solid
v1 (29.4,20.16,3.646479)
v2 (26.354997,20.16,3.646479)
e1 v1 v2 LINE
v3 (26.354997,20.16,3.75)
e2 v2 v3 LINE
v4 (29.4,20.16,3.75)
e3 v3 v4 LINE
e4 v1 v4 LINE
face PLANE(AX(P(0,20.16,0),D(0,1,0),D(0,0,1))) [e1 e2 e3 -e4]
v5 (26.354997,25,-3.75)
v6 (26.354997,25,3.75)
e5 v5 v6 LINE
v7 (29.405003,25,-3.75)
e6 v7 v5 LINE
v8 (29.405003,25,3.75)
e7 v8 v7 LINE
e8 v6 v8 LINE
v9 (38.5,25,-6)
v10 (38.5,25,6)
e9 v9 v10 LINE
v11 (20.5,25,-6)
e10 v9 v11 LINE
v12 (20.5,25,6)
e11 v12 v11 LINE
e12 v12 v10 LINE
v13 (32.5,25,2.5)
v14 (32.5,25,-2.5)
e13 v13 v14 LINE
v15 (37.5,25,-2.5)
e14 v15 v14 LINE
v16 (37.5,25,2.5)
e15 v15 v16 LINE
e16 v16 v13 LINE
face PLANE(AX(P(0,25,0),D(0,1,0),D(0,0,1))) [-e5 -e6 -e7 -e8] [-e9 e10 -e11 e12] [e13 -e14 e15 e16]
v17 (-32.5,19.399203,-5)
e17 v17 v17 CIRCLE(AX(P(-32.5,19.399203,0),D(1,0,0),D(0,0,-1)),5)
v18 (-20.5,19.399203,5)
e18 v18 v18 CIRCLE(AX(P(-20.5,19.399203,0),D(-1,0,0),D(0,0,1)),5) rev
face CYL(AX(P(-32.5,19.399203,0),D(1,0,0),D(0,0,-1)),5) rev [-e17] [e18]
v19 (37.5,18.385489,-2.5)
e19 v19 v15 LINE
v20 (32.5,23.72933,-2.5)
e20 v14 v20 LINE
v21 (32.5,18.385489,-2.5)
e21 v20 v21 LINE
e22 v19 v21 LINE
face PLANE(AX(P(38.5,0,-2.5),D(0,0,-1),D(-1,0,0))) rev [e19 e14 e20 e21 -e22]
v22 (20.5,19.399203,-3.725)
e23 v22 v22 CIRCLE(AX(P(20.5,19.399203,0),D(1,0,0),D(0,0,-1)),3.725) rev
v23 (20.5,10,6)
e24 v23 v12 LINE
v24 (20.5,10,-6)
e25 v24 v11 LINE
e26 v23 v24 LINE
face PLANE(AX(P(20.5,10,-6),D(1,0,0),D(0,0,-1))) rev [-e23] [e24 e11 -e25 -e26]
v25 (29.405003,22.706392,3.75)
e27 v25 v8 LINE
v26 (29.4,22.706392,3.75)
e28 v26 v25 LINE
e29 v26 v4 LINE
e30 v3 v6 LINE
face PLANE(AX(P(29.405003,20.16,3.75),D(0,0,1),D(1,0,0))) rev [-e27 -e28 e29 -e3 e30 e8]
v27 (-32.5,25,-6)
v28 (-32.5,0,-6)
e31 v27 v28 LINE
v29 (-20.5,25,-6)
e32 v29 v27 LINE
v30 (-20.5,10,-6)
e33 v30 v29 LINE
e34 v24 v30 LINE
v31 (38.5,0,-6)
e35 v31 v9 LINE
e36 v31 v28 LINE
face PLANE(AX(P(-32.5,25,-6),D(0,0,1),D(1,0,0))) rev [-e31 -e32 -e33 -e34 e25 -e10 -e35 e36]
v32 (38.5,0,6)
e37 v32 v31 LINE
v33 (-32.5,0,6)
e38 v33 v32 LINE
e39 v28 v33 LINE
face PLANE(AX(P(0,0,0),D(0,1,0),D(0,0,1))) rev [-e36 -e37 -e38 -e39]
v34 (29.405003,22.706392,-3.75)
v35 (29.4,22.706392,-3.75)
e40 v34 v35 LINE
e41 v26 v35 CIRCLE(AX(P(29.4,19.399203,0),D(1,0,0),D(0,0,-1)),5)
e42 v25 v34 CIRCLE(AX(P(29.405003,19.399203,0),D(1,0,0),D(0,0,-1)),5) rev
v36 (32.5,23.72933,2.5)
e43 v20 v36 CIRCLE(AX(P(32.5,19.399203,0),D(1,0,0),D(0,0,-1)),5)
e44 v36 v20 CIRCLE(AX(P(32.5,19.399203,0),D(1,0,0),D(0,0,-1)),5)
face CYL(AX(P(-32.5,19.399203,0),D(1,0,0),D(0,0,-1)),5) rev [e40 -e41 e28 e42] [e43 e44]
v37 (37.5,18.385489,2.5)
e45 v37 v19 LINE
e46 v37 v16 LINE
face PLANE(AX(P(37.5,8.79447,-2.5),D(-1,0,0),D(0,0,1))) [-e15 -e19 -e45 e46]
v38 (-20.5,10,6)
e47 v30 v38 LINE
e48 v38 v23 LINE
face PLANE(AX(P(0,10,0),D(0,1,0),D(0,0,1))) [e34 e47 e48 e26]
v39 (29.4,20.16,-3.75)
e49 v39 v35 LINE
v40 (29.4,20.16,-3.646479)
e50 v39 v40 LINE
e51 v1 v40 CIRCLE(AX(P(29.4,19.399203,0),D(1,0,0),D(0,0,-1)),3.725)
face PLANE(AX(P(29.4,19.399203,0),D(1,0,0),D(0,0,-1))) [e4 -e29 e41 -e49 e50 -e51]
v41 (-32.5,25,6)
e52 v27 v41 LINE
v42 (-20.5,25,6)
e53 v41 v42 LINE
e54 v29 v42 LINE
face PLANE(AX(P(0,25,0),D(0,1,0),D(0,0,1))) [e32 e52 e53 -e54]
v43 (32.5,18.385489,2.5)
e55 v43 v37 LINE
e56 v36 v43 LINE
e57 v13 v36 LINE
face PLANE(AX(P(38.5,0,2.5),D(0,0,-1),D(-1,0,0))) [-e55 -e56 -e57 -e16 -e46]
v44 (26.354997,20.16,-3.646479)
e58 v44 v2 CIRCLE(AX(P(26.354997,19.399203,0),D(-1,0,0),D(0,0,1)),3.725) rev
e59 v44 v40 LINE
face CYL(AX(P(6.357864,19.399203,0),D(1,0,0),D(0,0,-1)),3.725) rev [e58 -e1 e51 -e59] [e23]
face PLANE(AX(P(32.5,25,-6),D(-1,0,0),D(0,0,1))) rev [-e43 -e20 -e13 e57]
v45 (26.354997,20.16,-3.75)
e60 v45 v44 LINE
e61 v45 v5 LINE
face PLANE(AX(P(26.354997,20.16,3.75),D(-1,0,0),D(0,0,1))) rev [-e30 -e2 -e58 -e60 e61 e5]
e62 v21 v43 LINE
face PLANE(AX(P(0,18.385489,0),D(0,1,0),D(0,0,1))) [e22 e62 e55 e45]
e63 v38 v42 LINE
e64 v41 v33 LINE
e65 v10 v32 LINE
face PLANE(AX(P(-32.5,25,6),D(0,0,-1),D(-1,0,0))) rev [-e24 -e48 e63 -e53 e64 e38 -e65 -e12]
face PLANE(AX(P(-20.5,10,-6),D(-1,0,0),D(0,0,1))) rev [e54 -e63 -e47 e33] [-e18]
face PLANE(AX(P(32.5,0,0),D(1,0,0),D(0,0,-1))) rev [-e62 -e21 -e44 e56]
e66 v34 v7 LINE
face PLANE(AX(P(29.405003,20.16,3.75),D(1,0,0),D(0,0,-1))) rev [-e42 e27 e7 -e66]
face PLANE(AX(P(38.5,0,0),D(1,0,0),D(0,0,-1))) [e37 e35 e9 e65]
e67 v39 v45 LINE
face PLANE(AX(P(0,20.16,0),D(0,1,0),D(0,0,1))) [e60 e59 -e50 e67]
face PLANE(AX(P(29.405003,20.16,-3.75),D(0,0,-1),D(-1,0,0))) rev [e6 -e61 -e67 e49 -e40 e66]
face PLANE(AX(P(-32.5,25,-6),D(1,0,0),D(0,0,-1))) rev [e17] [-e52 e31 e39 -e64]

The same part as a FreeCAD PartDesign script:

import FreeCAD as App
import Part
import Sketcher


def add_polygon(sketch, points):
    """Adds a closed chain of lines whose ends are joined by coincident constraints."""
    first, n = sketch.GeometryCount, len(points)
    for a, b in zip(points, points[1:] + points[:1]):
        sketch.addGeometry(Part.LineSegment(App.Vector(*a, 0), App.Vector(*b, 0)), False)
    for i in range(n):
        sketch.addConstraint(Sketcher.Constraint("Coincident", first + i, 2, first + (i + 1) % n, 1))

doc = App.newDocument("Part")
body = doc.addObject("PartDesign::Body", "Body")

# Sketch on XZ plane
sketch1 = body.newObject("Sketcher::SketchObject", "Sketch")
sketch1.AttachmentSupport = (doc.getObject("XZ_Plane"), [""])
sketch1.MapMode = "FlatFace"
add_polygon(sketch1, [(-32.5, -6), (-32.5, 6), (32.5, 6), (32.5, -6)])  # lines 0-3
sketch1.addConstraint(Sketcher.Constraint("Vertical", 0))
sketch1.addConstraint(Sketcher.Constraint("Horizontal", 1))
sketch1.addConstraint(Sketcher.Constraint("Vertical", 2))
sketch1.addConstraint(Sketcher.Constraint("Horizontal", 3))
sketch1.addConstraint(Sketcher.Constraint("Symmetric", 0, 2, 2, 2, -1, 1))
sketch1.addConstraint(Sketcher.Constraint("DistanceX", 1, 1, 1, 2, 65.0))
sketch1.addConstraint(Sketcher.Constraint("DistanceY", 0, 1, 0, 2, 12.0))
pad1 = body.newObject("PartDesign::Pad", "Pad")
pad1.Profile = sketch1
pad1.Length = 25
pad1.Reversed = True

# Sketch on YZ plane
sketch2 = body.newObject("Sketcher::SketchObject", "Sketch001")
sketch2.AttachmentSupport = (doc.getObject("YZ_Plane"), [""])
sketch2.MapMode = "FlatFace"
sketch2.AttachmentOffset = App.Placement(App.Vector(0, 0, 32.5), App.Rotation())
sketch2.addGeometry(Part.Circle(App.Vector(19.399203, 0, 0), App.Vector(0, 0, 1), 5), False)
sketch2.addConstraint(Sketcher.Constraint("PointOnObject", 0, 3, -1))
sketch2.addConstraint(Sketcher.Constraint("Diameter", 0, 10.0))
sketch2.addConstraint(Sketcher.Constraint("DistanceX", -1, 1, 0, 3, 19.399203))
pocket1 = body.newObject("PartDesign::Pocket", "Pocket")
pocket1.Profile = sketch2
pocket1.Type = "ThroughAll"

# Sketch on XZ plane
sketch3 = body.newObject("Sketcher::SketchObject", "Sketch002")
sketch3.AttachmentSupport = (doc.getObject("XZ_Plane"), [""])
sketch3.MapMode = "FlatFace"
sketch3.AttachmentOffset = App.Placement(App.Vector(0, 0, -25), App.Rotation())
add_polygon(sketch3, [(-20.5, -6), (-20.5, 6), (20.5, 6), (20.5, -6)])  # lines 0-3
sketch3.addConstraint(Sketcher.Constraint("Vertical", 0))
sketch3.addConstraint(Sketcher.Constraint("Horizontal", 1))
sketch3.addConstraint(Sketcher.Constraint("Vertical", 2))
sketch3.addConstraint(Sketcher.Constraint("Horizontal", 3))
sketch3.addConstraint(Sketcher.Constraint("Symmetric", 0, 2, 2, 2, -1, 1))
sketch3.addConstraint(Sketcher.Constraint("DistanceX", 1, 1, 1, 2, 41.0))
sketch3.addConstraint(Sketcher.Constraint("DistanceY", 0, 1, 0, 2, 12.0))
pocket2 = body.newObject("PartDesign::Pocket", "Pocket001")
pocket2.Profile = sketch3
pocket2.Length = 15
pocket2.Reversed = True

# Sketch on YZ plane
sketch4 = body.newObject("Sketcher::SketchObject", "Sketch003")
sketch4.AttachmentSupport = (doc.getObject("YZ_Plane"), [""])
sketch4.MapMode = "FlatFace"
sketch4.AttachmentOffset = App.Placement(App.Vector(0, 0, 29.4), App.Rotation())
sketch4.addGeometry(Part.Circle(App.Vector(19.399203, 0, 0), App.Vector(0, 0, 1), 5), False)
sketch4.addGeometry(Part.Circle(App.Vector(19.399203, 0, 0), App.Vector(0, 0, 1), 3.725), False)
sketch4.addConstraint(Sketcher.Constraint("Coincident", 1, 3, 0, 3))
sketch4.addConstraint(Sketcher.Constraint("PointOnObject", 0, 3, -1))
sketch4.addConstraint(Sketcher.Constraint("Diameter", 0, 10.0))
sketch4.addConstraint(Sketcher.Constraint("Diameter", 1, 7.45))
sketch4.addConstraint(Sketcher.Constraint("DistanceX", -1, 1, 0, 3, 19.399203))
pad2 = body.newObject("PartDesign::Pad", "Pad001")
pad2.Profile = sketch4
pad2.Length = 8.9
pad2.Reversed = True

# Sketch on XZ plane
sketch5 = body.newObject("Sketcher::SketchObject", "Sketch004")
sketch5.AttachmentSupport = (doc.getObject("XZ_Plane"), [""])
sketch5.MapMode = "FlatFace"
sketch5.AttachmentOffset = App.Placement(App.Vector(0, 0, -25), App.Rotation())
add_polygon(sketch5, [(26.354997, -3.75), (26.354997, 3.75), (29.405003, 3.75), (29.405003, -3.75)])  # lines 0-3
sketch5.addConstraint(Sketcher.Constraint("Vertical", 0))
sketch5.addConstraint(Sketcher.Constraint("Horizontal", 1))
sketch5.addConstraint(Sketcher.Constraint("Vertical", 2))
sketch5.addConstraint(Sketcher.Constraint("Horizontal", 3))
sketch5.addConstraint(Sketcher.Constraint("DistanceY", 0, 1, 0, 2, 7.5))
sketch5.addConstraint(Sketcher.Constraint("DistanceY", -1, 1, 0, 2, 3.75))
sketch5.addConstraint(Sketcher.Constraint("DistanceX", 1, 1, 1, 2, 3.050007))
sketch5.addConstraint(Sketcher.Constraint("DistanceX", -1, 1, 0, 2, 26.354997))
pocket3 = body.newObject("PartDesign::Pocket", "Pocket002")
pocket3.Profile = sketch5
pocket3.Length = 4.84
pocket3.Reversed = True

# Sketch on YZ plane
sketch6 = body.newObject("Sketcher::SketchObject", "Sketch005")
sketch6.AttachmentSupport = (doc.getObject("YZ_Plane"), [""])
sketch6.MapMode = "FlatFace"
sketch6.AttachmentOffset = App.Placement(App.Vector(0, 0, 38.5), App.Rotation())
add_polygon(sketch6, [(25, 2.5), (25, 6), (0, 6), (0, -6), (25, -6), (25, -2.5), (13.893489, -2.5), (13.893489, 2.5)])  # lines 0-7
sketch6.addConstraint(Sketcher.Constraint("Vertical", 0))
sketch6.addConstraint(Sketcher.Constraint("Horizontal", 1))
sketch6.addConstraint(Sketcher.Constraint("Vertical", 2))
sketch6.addConstraint(Sketcher.Constraint("Horizontal", 3))
sketch6.addConstraint(Sketcher.Constraint("Vertical", 4))
sketch6.addConstraint(Sketcher.Constraint("Horizontal", 5))
sketch6.addConstraint(Sketcher.Constraint("Vertical", 6))
sketch6.addConstraint(Sketcher.Constraint("Horizontal", 7))
sketch6.addConstraint(Sketcher.Constraint("Symmetric", 1, 2, 2, 2, -1, 1))
sketch6.addConstraint(Sketcher.Constraint("Symmetric", 4, 2, 7, 2, -1))
sketch6.addConstraint(Sketcher.Constraint("DistanceX", 1, 2, 1, 1, 25.0))
sketch6.addConstraint(Sketcher.Constraint("DistanceY", 2, 2, 2, 1, 12.0))
sketch6.addConstraint(Sketcher.Constraint("DistanceY", 6, 1, 6, 2, 5.0))
sketch6.addConstraint(Sketcher.Constraint("DistanceX", 5, 2, 5, 1, 11.106511))
pad3 = body.newObject("PartDesign::Pad", "Pad002")
pad3.Profile = sketch6
pad3.Length = 6
pad3.Reversed = True

# Sketch on XZ plane
sketch7 = body.newObject("Sketcher::SketchObject", "Sketch006")
sketch7.AttachmentSupport = (doc.getObject("XZ_Plane"), [""])
sketch7.MapMode = "FlatFace"
sketch7.AttachmentOffset = App.Placement(App.Vector(0, 0, -25), App.Rotation())
add_polygon(sketch7, [(37.5, -2.5), (37.5, 2.5), (38.5, 2.5), (38.5, -2.5)])  # lines 0-3
sketch7.addConstraint(Sketcher.Constraint("Vertical", 0))
sketch7.addConstraint(Sketcher.Constraint("Horizontal", 1))
sketch7.addConstraint(Sketcher.Constraint("Vertical", 2))
sketch7.addConstraint(Sketcher.Constraint("Horizontal", 3))
sketch7.addConstraint(Sketcher.Constraint("DistanceX", 1, 1, 1, 2, 1.0))
sketch7.addConstraint(Sketcher.Constraint("DistanceY", 0, 1, 0, 2, 5.0))
sketch7.addConstraint(Sketcher.Constraint("DistanceX", -1, 1, 0, 2, 37.5))
sketch7.addConstraint(Sketcher.Constraint("DistanceY", -1, 1, 0, 2, 2.5))
pad4 = body.newObject("PartDesign::Pad", "Pad003")
pad4.Profile = sketch7
pad4.Length = 11.106511

# Sketch on XZ plane
sketch8 = body.newObject("Sketcher::SketchObject", "Sketch007")
sketch8.AttachmentSupport = (doc.getObject("XZ_Plane"), [""])
sketch8.MapMode = "FlatFace"
sketch8.AttachmentOffset = App.Placement(App.Vector(0, 0, -13.893489), App.Rotation())
add_polygon(sketch8, [(32.5, -2.5), (32.5, 2.5), (37.5, 2.5), (37.5, -2.5)])  # lines 0-3
sketch8.addConstraint(Sketcher.Constraint("Vertical", 0))
sketch8.addConstraint(Sketcher.Constraint("Horizontal", 1))
sketch8.addConstraint(Sketcher.Constraint("Vertical", 2))
sketch8.addConstraint(Sketcher.Constraint("Horizontal", 3))
sketch8.addConstraint(Sketcher.Constraint("Equal", 3, 0))
sketch8.addConstraint(Sketcher.Constraint("DistanceX", 1, 1, 1, 2, 5.0))
sketch8.addConstraint(Sketcher.Constraint("DistanceX", -1, 1, 0, 2, 32.5))
sketch8.addConstraint(Sketcher.Constraint("DistanceY", -1, 1, 0, 2, 2.5))
pad5 = body.newObject("PartDesign::Pad", "Pad004")
pad5.Profile = sketch8
pad5.Length = 4.492
pad5.Reversed = True

doc.recompute()
